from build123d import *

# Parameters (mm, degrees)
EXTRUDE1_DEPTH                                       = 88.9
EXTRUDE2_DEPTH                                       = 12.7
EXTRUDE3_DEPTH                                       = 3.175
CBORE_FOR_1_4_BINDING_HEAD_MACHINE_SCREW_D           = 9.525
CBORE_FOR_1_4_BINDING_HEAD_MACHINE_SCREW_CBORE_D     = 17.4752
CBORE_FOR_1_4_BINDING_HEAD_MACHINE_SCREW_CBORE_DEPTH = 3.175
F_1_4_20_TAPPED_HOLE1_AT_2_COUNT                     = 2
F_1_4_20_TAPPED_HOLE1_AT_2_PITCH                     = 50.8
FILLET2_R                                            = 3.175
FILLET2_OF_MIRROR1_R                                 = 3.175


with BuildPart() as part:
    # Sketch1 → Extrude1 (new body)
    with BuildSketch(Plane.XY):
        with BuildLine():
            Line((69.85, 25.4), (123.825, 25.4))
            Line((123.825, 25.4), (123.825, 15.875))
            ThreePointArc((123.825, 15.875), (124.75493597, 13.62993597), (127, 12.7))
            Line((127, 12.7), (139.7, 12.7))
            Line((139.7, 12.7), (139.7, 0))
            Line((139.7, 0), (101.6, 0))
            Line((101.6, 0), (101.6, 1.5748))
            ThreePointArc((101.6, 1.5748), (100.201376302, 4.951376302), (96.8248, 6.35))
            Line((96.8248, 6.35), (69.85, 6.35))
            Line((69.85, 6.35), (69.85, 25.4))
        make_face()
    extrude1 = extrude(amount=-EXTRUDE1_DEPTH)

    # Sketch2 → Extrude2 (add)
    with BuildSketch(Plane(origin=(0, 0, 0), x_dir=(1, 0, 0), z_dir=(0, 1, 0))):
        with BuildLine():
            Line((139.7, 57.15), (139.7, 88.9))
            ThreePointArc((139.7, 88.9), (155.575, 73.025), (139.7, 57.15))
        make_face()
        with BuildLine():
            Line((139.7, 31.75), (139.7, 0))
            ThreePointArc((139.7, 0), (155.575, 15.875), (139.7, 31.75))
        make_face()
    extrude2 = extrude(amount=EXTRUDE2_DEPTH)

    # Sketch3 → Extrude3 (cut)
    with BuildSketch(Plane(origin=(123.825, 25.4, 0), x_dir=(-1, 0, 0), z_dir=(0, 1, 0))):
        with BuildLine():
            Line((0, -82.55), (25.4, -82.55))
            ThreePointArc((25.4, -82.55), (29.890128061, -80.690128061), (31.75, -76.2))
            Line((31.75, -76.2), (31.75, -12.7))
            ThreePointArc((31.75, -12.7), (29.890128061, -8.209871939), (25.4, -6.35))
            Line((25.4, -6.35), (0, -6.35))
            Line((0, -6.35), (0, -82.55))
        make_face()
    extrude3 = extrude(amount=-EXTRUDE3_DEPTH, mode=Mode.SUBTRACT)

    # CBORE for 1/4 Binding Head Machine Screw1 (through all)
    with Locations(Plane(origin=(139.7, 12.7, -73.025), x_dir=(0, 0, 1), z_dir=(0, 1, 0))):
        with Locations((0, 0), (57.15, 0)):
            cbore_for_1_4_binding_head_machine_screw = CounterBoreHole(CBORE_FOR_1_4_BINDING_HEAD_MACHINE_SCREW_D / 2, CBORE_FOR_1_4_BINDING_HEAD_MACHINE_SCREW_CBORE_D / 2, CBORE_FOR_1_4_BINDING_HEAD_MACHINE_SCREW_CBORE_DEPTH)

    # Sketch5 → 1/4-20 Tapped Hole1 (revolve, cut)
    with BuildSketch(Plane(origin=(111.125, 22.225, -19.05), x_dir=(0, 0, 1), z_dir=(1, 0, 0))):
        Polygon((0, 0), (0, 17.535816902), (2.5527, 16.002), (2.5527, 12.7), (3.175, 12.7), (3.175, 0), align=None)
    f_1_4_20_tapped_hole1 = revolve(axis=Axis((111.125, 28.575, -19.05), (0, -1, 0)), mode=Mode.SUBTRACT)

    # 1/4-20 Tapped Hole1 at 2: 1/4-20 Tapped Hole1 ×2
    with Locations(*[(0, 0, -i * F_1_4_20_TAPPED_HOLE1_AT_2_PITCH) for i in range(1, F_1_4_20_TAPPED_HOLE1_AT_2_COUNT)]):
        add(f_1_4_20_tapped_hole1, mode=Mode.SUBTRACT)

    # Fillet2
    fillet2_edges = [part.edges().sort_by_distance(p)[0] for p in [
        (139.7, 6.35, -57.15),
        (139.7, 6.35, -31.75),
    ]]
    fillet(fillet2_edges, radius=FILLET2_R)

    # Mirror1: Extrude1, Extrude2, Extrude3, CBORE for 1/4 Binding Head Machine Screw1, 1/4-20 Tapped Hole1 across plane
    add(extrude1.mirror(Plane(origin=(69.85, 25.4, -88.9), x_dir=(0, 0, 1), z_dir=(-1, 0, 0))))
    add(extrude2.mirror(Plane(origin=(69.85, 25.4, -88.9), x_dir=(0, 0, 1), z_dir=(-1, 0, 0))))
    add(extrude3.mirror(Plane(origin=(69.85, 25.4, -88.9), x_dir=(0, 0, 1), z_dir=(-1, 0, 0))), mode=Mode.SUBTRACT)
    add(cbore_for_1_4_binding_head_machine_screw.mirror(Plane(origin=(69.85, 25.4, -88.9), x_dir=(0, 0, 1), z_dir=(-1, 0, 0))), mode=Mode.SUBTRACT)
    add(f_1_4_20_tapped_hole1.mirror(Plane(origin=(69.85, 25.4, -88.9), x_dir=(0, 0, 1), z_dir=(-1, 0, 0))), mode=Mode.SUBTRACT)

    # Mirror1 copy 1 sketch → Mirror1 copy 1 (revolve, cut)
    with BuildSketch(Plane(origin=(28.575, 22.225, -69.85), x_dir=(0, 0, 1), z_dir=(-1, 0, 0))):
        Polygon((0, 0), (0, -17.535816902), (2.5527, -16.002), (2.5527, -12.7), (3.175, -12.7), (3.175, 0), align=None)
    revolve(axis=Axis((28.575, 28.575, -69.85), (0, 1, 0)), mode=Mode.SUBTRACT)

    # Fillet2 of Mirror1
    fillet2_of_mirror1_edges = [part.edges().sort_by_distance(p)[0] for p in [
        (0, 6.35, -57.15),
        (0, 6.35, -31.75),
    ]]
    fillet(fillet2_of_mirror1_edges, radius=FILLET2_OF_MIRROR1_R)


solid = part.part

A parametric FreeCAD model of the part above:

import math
import FreeCAD as App
import Part
import Sketcher
from FreeCAD import Vector
Q = App.Units.Quantity


def edges_at(feature, points):
    """Names of the edges that pass closest to the given points."""
    edges = feature.Shape.Edges
    near = lambda p: min(range(len(edges)), key=lambda i: edges[i].distToShape(Part.Vertex(*p))[0])
    return sorted({f"Edge{near(p) + 1}" for p in points})


def add_polygon(sketch, points):
    """Adds a closed chain of lines whose ends are joined by coincident constraints."""
    first, n = sketch.GeometryCount, len(points)
    for a, b in zip(points, points[1:] + points[:1]):
        sketch.addGeometry(Part.LineSegment(App.Vector(*a, 0), App.Vector(*b, 0)), False)
    for i in range(n):
        sketch.addConstraint(Sketcher.Constraint("Coincident", first + i, 2, first + (i + 1) % n, 1))

doc = App.newDocument("Part")
params = doc.addObject("Spreadsheet::Sheet", "Params")
for row, (alias, value) in enumerate([
    ("sketch1_width", "1.5 in"),
    ("sketch1_width2", "0.5 in"),
    ("sketch1_radius", "0.188 in"),
    ("sketch1_radius2", "0.125 in"),
    ("sketch1_height", "0.75 in"),
    ("pad1_length", "3.5 in"),
    ("sketch2_radius", "0.625 in"),
    ("pad2_length", "0.5 in"),
    ("sketch3_width", "1 in"),
    ("sketch3_height", "3 in"),
    ("sketch3_radius", "0.25 in"),
    ("pocket1_length", "0.125 in"),
    ("sketch4_diameter", "0.375 in"),
    ("hole_diameter", "0.375 in"),
    ("hole_cbore_diameter", "0.688 in"),
    ("hole_cbore_depth", "0.125 in"),
    ("sketch5_width", "0.5 in"),
    ("sketch5_width2", "0.13 in"),
    ("sketch5_height", "0.125 in"),
    ("groove_angle", "360 deg"),
    ("linearpattern_pitch", "2 in"),
    ("fillet_radius", "0.125 in"),
    ("sketch6_width", "0.5 in"),
    ("sketch6_width2", "0.13 in"),
    ("sketch6_height", "0.125 in"),
    ("groove2_angle", "360 deg"),
    ("fillet2_radius", "0.125 in"),
], start=1):
    params.set(f"A{row}", alias)
    params.set(f"B{row}", "=" + value)
    params.setAlias(f"B{row}", alias)

body = doc.addObject("PartDesign::Body", "Body")

# Sketch on XY plane
sketch1 = body.newObject("Sketcher::SketchObject", "Sketch")
sketch1.AttachmentSupport = (doc.getObject("XY_Plane"), [""])
sketch1.MapMode = "FlatFace"
sketch1.addGeometry(Part.LineSegment(Vector(123.8, 25.4, 0), Vector(69.8, 25.4, 0)), False)
sketch1.addGeometry(Part.LineSegment(Vector(69.8, 25.4, 0), Vector(69.8, 6.3, 0)), False)
sketch1.addGeometry(Part.LineSegment(Vector(69.8, 6.3, 0), Vector(96.8, 6.3, 0)), False)
sketch1.addGeometry(Part.ArcOfCircle(Part.Circle(Vector(96.8, 1.6, 0), Vector(0, 0, 1), 4.8), math.radians(0), math.radians(90)), False)
sketch1.addGeometry(Part.LineSegment(Vector(101.6, 1.6, 0), Vector(101.6, 0, 0)), False)
sketch1.addGeometry(Part.LineSegment(Vector(101.6, 0, 0), Vector(139.7, 0, 0)), False)
sketch1.addGeometry(Part.LineSegment(Vector(139.7, 0, 0), Vector(139.7, 12.7, 0)), False)
sketch1.addGeometry(Part.LineSegment(Vector(139.7, 12.7, 0), Vector(127, 12.7, 0)), False)
sketch1.addGeometry(Part.ArcOfCircle(Part.Circle(Vector(127, 15.9, 0), Vector(0, 0, 1), 3.2), math.radians(-180), math.radians(-90)), False)
sketch1.addGeometry(Part.LineSegment(Vector(123.8, 15.9, 0), Vector(123.8, 25.4, 0)), False)
sketch1.addConstraint(Sketcher.Constraint("Coincident", 0, 2, 1, 1))
sketch1.addConstraint(Sketcher.Constraint("Coincident", 1, 2, 2, 1))
sketch1.addConstraint(Sketcher.Constraint("Tangent", 2, 2, 3, 2))
sketch1.addConstraint(Sketcher.Constraint("Tangent", 3, 1, 4, 1))
sketch1.addConstraint(Sketcher.Constraint("Coincident", 4, 2, 5, 1))
sketch1.addConstraint(Sketcher.Constraint("Coincident", 5, 2, 6, 1))
sketch1.addConstraint(Sketcher.Constraint("Coincident", 6, 2, 7, 1))
sketch1.addConstraint(Sketcher.Constraint("Tangent", 7, 2, 8, 2))
sketch1.addConstraint(Sketcher.Constraint("Tangent", 8, 1, 9, 1))
sketch1.addConstraint(Sketcher.Constraint("Coincident", 9, 2, 0, 1))
sketch1.addConstraint(Sketcher.Constraint("Horizontal", 0))
sketch1.addConstraint(Sketcher.Constraint("Vertical", 1))
sketch1.addConstraint(Sketcher.Constraint("Horizontal", 2))
sketch1.addConstraint(Sketcher.Constraint("Vertical", 4))
sketch1.addConstraint(Sketcher.Constraint("Horizontal", 5))
sketch1.addConstraint(Sketcher.Constraint("Vertical", 6))
sketch1.addConstraint(Sketcher.Constraint("Horizontal", 7))
sketch1.addConstraint(Sketcher.Constraint("Vertical", 9))
sketch1.addConstraint(Sketcher.Constraint("PointOnObject", 4, 2, -1))
sketch1.addConstraint(Sketcher.Constraint("Equal", 7, 6))
sketch1.addConstraint(Sketcher.Constraint("DistanceX", 5, 1, 5, 2, Q("1.5 in")))
sketch1.addConstraint(Sketcher.Constraint("DistanceX", 7, 2, 7, 1, Q("0.5 in")))
sketch1.addConstraint(Sketcher.Constraint("DistanceX", -1, 1, 8, 3, Q("5 in")))
sketch1.addConstraint(Sketcher.Constraint("DistanceY", -1, 1, 0, 2, Q("1 in")))
sketch1.addConstraint(Sketcher.Constraint("Radius", 3, Q("0.188 in")))
sketch1.addConstraint(Sketcher.Constraint("Radius", 8, Q("0.125 in")))
sketch1.addConstraint(Sketcher.Constraint("DistanceY", 1, 2, 1, 1, Q("0.75 in")))
sketch1.addConstraint(Sketcher.Constraint("DistanceX", 0, 2, 0, 1, Q("2.125 in")))
sketch1.setExpression("Constraints[20]", "Params.sketch1_width")
sketch1.setExpression("Constraints[21]", "Params.sketch1_width2")
sketch1.setExpression("Constraints[24]", "Params.sketch1_radius")
sketch1.setExpression("Constraints[25]", "Params.sketch1_radius2")
sketch1.setExpression("Constraints[26]", "Params.sketch1_height")
pad1 = body.newObject("PartDesign::Pad", "Pad")
pad1.Profile = sketch1
pad1.setExpression("Length", "Params.pad1_length")
pad1.Reversed = True

# Sketch on XZ plane
sketch2 = body.newObject("Sketcher::SketchObject", "Sketch001")
sketch2.AttachmentSupport = (doc.getObject("XZ_Plane"), [""])
sketch2.MapMode = "FlatFace"
sketch2.addGeometry(Part.LineSegment(Vector(140, -89, 0), Vector(140, -57, 0)), False)
sketch2.addGeometry(Part.ArcOfCircle(Part.Circle(Vector(140, -73, 0), Vector(0, 0, 1), 16), math.radians(-90), math.radians(90)), False)
sketch2.addGeometry(Part.LineSegment(Vector(140, -32, 0), Vector(140, 0, 0)), False)
sketch2.addGeometry(Part.ArcOfCircle(Part.Circle(Vector(140, -16, 0), Vector(0, 0, 1), 16), math.radians(-90), math.radians(90)), False)
sketch2.addConstraint(Sketcher.Constraint("Coincident", 0, 1, 1, 1))
sketch2.addConstraint(Sketcher.Constraint("Coincident", 1, 2, 0, 2))
sketch2.addConstraint(Sketcher.Constraint("Coincident", 2, 1, 3, 1))
sketch2.addConstraint(Sketcher.Constraint("Coincident", 3, 2, 2, 2))
sketch2.addConstraint(Sketcher.Constraint("Vertical", 0))
sketch2.addConstraint(Sketcher.Constraint("Vertical", 2))
sketch2.addConstraint(Sketcher.Constraint("Equal", 1, 3))
sketch2.addConstraint(Sketcher.Constraint("PointOnObject", 3, 2, -1))
sketch2.addConstraint(Sketcher.Constraint("Vertical", 1, 3, 3, 3))
sketch2.addConstraint(Sketcher.Constraint("Vertical", 3, 3, 0, 1))
sketch2.addConstraint(Sketcher.Constraint("Vertical", 1, 2, 2, 1))
sketch2.addConstraint(Sketcher.Constraint("Radius", 1, Q("0.625 in")))
sketch2.addConstraint(Sketcher.Constraint("DistanceY", 1, 2, 2, 1, Q("1 in")))
sketch2.addConstraint(Sketcher.Constraint("DistanceX", -1, 1, 1, 3, Q("5.5 in")))
sketch2.setExpression("Constraints[11]", "Params.sketch2_radius")
pad2 = body.newObject("PartDesign::Pad", "Pad001")
pad2.Profile = sketch2
pad2.setExpression("Length", "Params.pad2_length")
pad2.Reversed = True

# Sketch on XZ plane
sketch3 = body.newObject("Sketcher::SketchObject", "Sketch002")
sketch3.AttachmentSupport = (doc.getObject("XZ_Plane"), [""])
sketch3.MapMode = "FlatFace"
sketch3.AttachmentOffset = App.Placement(Vector(0, 0, -1 * 25.4), App.Rotation())
sketch3.addGeometry(Part.LineSegment(Vector(124, -83, 0), Vector(98, -83, 0)), False)
sketch3.addGeometry(Part.ArcOfCircle(Part.Circle(Vector(98, -76, 0), Vector(0, 0, 1), 6), math.radians(180), math.radians(270)), False)
sketch3.addGeometry(Part.LineSegment(Vector(92, -76, 0), Vector(92, -13, 0)), False)
sketch3.addGeometry(Part.ArcOfCircle(Part.Circle(Vector(98, -13, 0), Vector(0, 0, 1), 6), math.radians(90), math.radians(180)), False)
sketch3.addGeometry(Part.LineSegment(Vector(98, -6, 0), Vector(124, -6, 0)), False)
sketch3.addGeometry(Part.LineSegment(Vector(124, -6, 0), Vector(124, -83, 0)), False)
sketch3.addConstraint(Sketcher.Constraint("Tangent", 0, 2, 1, 2))
sketch3.addConstraint(Sketcher.Constraint("Tangent", 1, 1, 2, 1))
sketch3.addConstraint(Sketcher.Constraint("Tangent", 2, 2, 3, 2))
sketch3.addConstraint(Sketcher.Constraint("Tangent", 3, 1, 4, 1))
sketch3.addConstraint(Sketcher.Constraint("Coincident", 4, 2, 5, 1))
sketch3.addConstraint(Sketcher.Constraint("Coincident", 5, 2, 0, 1))
sketch3.addConstraint(Sketcher.Constraint("Horizontal", 0))
sketch3.addConstraint(Sketcher.Constraint("Vertical", 2))
sketch3.addConstraint(Sketcher.Constraint("Horizontal", 4))
sketch3.addConstraint(Sketcher.Constraint("Vertical", 5))
sketch3.addConstraint(Sketcher.Constraint("Equal", 1, 3))
sketch3.addConstraint(Sketcher.Constraint("DistanceX", 0, 2, 0, 1, Q("1 in")))
sketch3.addConstraint(Sketcher.Constraint("DistanceY", 5, 2, 5, 1, Q("3 in")))
sketch3.addConstraint(Sketcher.Constraint("Radius", 1, Q("0.25 in")))
sketch3.addConstraint(Sketcher.Constraint("DistanceY", 1, 3, -1, 1, Q("3 in")))
sketch3.addConstraint(Sketcher.Constraint("DistanceX", -1, 1, 1, 3, Q("3.875 in")))
sketch3.setExpression("Constraints[11]", "Params.sketch3_width")
sketch3.setExpression("Constraints[12]", "Params.sketch3_height")
sketch3.setExpression("Constraints[13]", "Params.sketch3_radius")
pocket1 = body.newObject("PartDesign::Pocket", "Pocket")
pocket1.Profile = sketch3
pocket1.setExpression("Length", "Params.pocket1_length")
pocket1.Reversed = True

# Sketch on XZ plane
sketch4 = body.newObject("Sketcher::SketchObject", "Sketch003")
sketch4.AttachmentSupport = (doc.getObject("XZ_Plane"), [""])
sketch4.MapMode = "FlatFace"
sketch4.AttachmentOffset = App.Placement(Vector(0, 0, -0.5 * 25.4), App.Rotation())
sketch4.addGeometry(Part.Circle(Vector(139.7, -73, 0), Vector(0, 0, 1), 4.8), False)
sketch4.addGeometry(Part.Circle(Vector(139.7, -15.9, 0), Vector(0, 0, 1), 4.8), False)
sketch4.addConstraint(Sketcher.Constraint("Equal", 0, 1))
sketch4.addConstraint(Sketcher.Constraint("Vertical", 0, 3, 1, 3))
sketch4.addConstraint(Sketcher.Constraint("Diameter", 0, Q("0.375 in")))
sketch4.addConstraint(Sketcher.Constraint("DistanceX", -1, 1, 0, 3, Q("5.5 in")))
sketch4.addConstraint(Sketcher.Constraint("DistanceY", 0, 3, 1, 3, Q("2.25 in")))
sketch4.addConstraint(Sketcher.Constraint("DistanceY", 0, 3, -1, 1, Q("2.875 in")))
sketch4.setExpression("Constraints[2]", "Params.sketch4_diameter")
doc.recompute()
hole = body.newObject("PartDesign::Hole", "Hole")
hole.Profile = sketch4
hole.ThreadType = "None"
hole.setExpression("Diameter", "Params.hole_diameter")
hole.DepthType = "ThroughAll"
hole.HoleCutType = "Counterbore"
hole.setExpression("HoleCutDiameter", "Params.hole_cbore_diameter")
hole.setExpression("HoleCutDepth", "Params.hole_cbore_depth")
hole.Reversed = True

# Sketch on YZ plane
sketch5 = body.newObject("Sketcher::SketchObject", "Sketch004")
sketch5.AttachmentSupport = (doc.getObject("YZ_Plane"), [""])
sketch5.MapMode = "FlatFace"
sketch5.AttachmentOffset = App.Placement(Vector(0, 0, 4.375 * 25.4), App.Rotation())
add_polygon(sketch5, [(4.7, -19.1), (22.2, -19.1), (22.2, -15.9), (9.5, -15.9), (9.5, -16.5), (6.2, -16.5)])  # lines 0-5
sketch5.addGeometry(Part.LineSegment(Vector(22.2, -19.1, 0), Vector(4.7, -19.1, 0)), True)  # axis
sketch5.addConstraint(Sketcher.Constraint("Horizontal", 0))
sketch5.addConstraint(Sketcher.Constraint("Vertical", 1))
sketch5.addConstraint(Sketcher.Constraint("Horizontal", 2))
sketch5.addConstraint(Sketcher.Constraint("Vertical", 3))
sketch5.addConstraint(Sketcher.Constraint("Horizontal", 4))
sketch5.addConstraint(Sketcher.Constraint("Horizontal", 6))
sketch5.addConstraint(Sketcher.Constraint("Coincident", 6, 1, 0, 2))
sketch5.addConstraint(Sketcher.Constraint("Equal", 0, 6))
sketch5.addConstraint(Sketcher.Constraint("DistanceX", 2, 2, 2, 1, Q("0.5 in")))
sketch5.addConstraint(Sketcher.Constraint("Angle", 5, Q("-121 deg")))
sketch5.addConstraint(Sketcher.Constraint("DistanceX", 4, 2, 4, 1, Q("0.13 in")))
sketch5.addConstraint(Sketcher.Constraint("DistanceY", 1, 1, 1, 2, Q("0.125 in")))
sketch5.addConstraint(Sketcher.Constraint("DistanceY", 0, 2, -1, 1, Q("0.75 in")))
sketch5.addConstraint(Sketcher.Constraint("DistanceY", 3, 2, 3, 1, Q("0.0245 in")))
sketch5.addConstraint(Sketcher.Constraint("DistanceX", -1, 1, 0, 2, Q("0.875 in")))
sketch5.setExpression("Constraints[14]", "Params.sketch5_width")
sketch5.setExpression("Constraints[16]", "Params.sketch5_width2")
sketch5.setExpression("Constraints[17]", "Params.sketch5_height")
groove = body.newObject("PartDesign::Groove", "Groove")
groove.Profile = sketch5
groove.ReferenceAxis = (sketch5, ["Axis0"])
groove.setExpression("Angle", "Params.groove_angle")
doc.recompute()

linearpattern = body.newObject("PartDesign::LinearPattern", "LinearPattern")
linearpattern.Originals = [groove]
linearpattern.Direction = (doc.getObject("Z_Axis"), [""])
linearpattern.Mode = "offset"
linearpattern.setExpression("Offset", "Params.linearpattern_pitch")
linearpattern.Occurrences = 2
linearpattern.Reversed = True
body.Tip = linearpattern
doc.recompute()

fillet = body.newObject("PartDesign::Fillet", "Fillet")
fillet.Base = (linearpattern, edges_at(linearpattern, [(139.7, 6.35, -57.15), (139.7, 6.35, -31.75)]))
fillet.setExpression("Radius", "Params.fillet_radius")
doc.recompute()

datumplane = body.newObject("PartDesign::Plane", "DatumPlane")
datumplane.AttachmentSupport = (doc.getObject("YZ_Plane"), [""])
datumplane.MapMode = "FlatFace"
datumplane.AttachmentOffset = App.Placement(Vector(0, 0, 2.75 * 25.4), App.Rotation())
mirrored = body.newObject("PartDesign::Mirrored", "Mirrored")
mirrored.Originals = [pad1, pad2, pocket1, hole, groove]
mirrored.MirrorPlane = (datumplane, [""])
body.Tip = mirrored

# Sketch on YZ plane
sketch6 = body.newObject("Sketcher::SketchObject", "Sketch005")
sketch6.AttachmentSupport = (doc.getObject("YZ_Plane"), [""])
sketch6.MapMode = "FlatFace"
sketch6.AttachmentOffset = App.Placement(Vector(0, 0, 1.125 * 25.4), App.Rotation())
add_polygon(sketch6, [(22.2, -69.8), (4.7, -69.8), (6.2, -67.3), (9.5, -67.3), (9.5, -66.7), (22.2, -66.7)])  # lines 0-5
sketch6.addGeometry(Part.LineSegment(Vector(4.7, -69.8, 0), Vector(22.2, -69.8, 0)), True)  # axis
sketch6.addConstraint(Sketcher.Constraint("Horizontal", 0))
sketch6.addConstraint(Sketcher.Constraint("Horizontal", 2))
sketch6.addConstraint(Sketcher.Constraint("Vertical", 3))
sketch6.addConstraint(Sketcher.Constraint("Horizontal", 4))
sketch6.addConstraint(Sketcher.Constraint("Vertical", 5))
sketch6.addConstraint(Sketcher.Constraint("Horizontal", 6))
sketch6.addConstraint(Sketcher.Constraint("Coincident", 6, 1, 0, 2))
sketch6.addConstraint(Sketcher.Constraint("Vertical", 4, 2, 6, 2))
sketch6.addConstraint(Sketcher.Constraint("DistanceX", 4, 1, 4, 2, Q("0.5 in")))
sketch6.addConstraint(Sketcher.Constraint("Angle", 1, Q("59 deg")))
sketch6.addConstraint(Sketcher.Constraint("DistanceX", 2, 1, 2, 2, Q("0.13 in")))
sketch6.addConstraint(Sketcher.Constraint("DistanceY", 5, 2, 5, 1, Q("0.125 in")))
sketch6.addConstraint(Sketcher.Constraint("DistanceY", 0, 2, -1, 1, Q("2.75 in")))
sketch6.addConstraint(Sketcher.Constraint("DistanceY", 3, 1, 3, 2, Q("0.0245 in")))
sketch6.addConstraint(Sketcher.Constraint("DistanceX", -1, 1, 1, 2, Q("0.245 in")))
sketch6.setExpression("Constraints[14]", "Params.sketch6_width")
sketch6.setExpression("Constraints[16]", "Params.sketch6_width2")
sketch6.setExpression("Constraints[17]", "Params.sketch6_height")
groove2 = body.newObject("PartDesign::Groove", "Groove001")
groove2.Profile = sketch6
groove2.ReferenceAxis = (sketch6, ["Axis0"])
groove2.setExpression("Angle", "Params.groove2_angle")
doc.recompute()

fillet2 = body.newObject("PartDesign::Fillet", "Fillet001")
fillet2.Base = (groove2, edges_at(groove2, [(0, 6.35, -57.15), (0, 6.35, -31.75)]))
fillet2.setExpression("Radius", "Params.fillet2_radius")

doc.recompute()
